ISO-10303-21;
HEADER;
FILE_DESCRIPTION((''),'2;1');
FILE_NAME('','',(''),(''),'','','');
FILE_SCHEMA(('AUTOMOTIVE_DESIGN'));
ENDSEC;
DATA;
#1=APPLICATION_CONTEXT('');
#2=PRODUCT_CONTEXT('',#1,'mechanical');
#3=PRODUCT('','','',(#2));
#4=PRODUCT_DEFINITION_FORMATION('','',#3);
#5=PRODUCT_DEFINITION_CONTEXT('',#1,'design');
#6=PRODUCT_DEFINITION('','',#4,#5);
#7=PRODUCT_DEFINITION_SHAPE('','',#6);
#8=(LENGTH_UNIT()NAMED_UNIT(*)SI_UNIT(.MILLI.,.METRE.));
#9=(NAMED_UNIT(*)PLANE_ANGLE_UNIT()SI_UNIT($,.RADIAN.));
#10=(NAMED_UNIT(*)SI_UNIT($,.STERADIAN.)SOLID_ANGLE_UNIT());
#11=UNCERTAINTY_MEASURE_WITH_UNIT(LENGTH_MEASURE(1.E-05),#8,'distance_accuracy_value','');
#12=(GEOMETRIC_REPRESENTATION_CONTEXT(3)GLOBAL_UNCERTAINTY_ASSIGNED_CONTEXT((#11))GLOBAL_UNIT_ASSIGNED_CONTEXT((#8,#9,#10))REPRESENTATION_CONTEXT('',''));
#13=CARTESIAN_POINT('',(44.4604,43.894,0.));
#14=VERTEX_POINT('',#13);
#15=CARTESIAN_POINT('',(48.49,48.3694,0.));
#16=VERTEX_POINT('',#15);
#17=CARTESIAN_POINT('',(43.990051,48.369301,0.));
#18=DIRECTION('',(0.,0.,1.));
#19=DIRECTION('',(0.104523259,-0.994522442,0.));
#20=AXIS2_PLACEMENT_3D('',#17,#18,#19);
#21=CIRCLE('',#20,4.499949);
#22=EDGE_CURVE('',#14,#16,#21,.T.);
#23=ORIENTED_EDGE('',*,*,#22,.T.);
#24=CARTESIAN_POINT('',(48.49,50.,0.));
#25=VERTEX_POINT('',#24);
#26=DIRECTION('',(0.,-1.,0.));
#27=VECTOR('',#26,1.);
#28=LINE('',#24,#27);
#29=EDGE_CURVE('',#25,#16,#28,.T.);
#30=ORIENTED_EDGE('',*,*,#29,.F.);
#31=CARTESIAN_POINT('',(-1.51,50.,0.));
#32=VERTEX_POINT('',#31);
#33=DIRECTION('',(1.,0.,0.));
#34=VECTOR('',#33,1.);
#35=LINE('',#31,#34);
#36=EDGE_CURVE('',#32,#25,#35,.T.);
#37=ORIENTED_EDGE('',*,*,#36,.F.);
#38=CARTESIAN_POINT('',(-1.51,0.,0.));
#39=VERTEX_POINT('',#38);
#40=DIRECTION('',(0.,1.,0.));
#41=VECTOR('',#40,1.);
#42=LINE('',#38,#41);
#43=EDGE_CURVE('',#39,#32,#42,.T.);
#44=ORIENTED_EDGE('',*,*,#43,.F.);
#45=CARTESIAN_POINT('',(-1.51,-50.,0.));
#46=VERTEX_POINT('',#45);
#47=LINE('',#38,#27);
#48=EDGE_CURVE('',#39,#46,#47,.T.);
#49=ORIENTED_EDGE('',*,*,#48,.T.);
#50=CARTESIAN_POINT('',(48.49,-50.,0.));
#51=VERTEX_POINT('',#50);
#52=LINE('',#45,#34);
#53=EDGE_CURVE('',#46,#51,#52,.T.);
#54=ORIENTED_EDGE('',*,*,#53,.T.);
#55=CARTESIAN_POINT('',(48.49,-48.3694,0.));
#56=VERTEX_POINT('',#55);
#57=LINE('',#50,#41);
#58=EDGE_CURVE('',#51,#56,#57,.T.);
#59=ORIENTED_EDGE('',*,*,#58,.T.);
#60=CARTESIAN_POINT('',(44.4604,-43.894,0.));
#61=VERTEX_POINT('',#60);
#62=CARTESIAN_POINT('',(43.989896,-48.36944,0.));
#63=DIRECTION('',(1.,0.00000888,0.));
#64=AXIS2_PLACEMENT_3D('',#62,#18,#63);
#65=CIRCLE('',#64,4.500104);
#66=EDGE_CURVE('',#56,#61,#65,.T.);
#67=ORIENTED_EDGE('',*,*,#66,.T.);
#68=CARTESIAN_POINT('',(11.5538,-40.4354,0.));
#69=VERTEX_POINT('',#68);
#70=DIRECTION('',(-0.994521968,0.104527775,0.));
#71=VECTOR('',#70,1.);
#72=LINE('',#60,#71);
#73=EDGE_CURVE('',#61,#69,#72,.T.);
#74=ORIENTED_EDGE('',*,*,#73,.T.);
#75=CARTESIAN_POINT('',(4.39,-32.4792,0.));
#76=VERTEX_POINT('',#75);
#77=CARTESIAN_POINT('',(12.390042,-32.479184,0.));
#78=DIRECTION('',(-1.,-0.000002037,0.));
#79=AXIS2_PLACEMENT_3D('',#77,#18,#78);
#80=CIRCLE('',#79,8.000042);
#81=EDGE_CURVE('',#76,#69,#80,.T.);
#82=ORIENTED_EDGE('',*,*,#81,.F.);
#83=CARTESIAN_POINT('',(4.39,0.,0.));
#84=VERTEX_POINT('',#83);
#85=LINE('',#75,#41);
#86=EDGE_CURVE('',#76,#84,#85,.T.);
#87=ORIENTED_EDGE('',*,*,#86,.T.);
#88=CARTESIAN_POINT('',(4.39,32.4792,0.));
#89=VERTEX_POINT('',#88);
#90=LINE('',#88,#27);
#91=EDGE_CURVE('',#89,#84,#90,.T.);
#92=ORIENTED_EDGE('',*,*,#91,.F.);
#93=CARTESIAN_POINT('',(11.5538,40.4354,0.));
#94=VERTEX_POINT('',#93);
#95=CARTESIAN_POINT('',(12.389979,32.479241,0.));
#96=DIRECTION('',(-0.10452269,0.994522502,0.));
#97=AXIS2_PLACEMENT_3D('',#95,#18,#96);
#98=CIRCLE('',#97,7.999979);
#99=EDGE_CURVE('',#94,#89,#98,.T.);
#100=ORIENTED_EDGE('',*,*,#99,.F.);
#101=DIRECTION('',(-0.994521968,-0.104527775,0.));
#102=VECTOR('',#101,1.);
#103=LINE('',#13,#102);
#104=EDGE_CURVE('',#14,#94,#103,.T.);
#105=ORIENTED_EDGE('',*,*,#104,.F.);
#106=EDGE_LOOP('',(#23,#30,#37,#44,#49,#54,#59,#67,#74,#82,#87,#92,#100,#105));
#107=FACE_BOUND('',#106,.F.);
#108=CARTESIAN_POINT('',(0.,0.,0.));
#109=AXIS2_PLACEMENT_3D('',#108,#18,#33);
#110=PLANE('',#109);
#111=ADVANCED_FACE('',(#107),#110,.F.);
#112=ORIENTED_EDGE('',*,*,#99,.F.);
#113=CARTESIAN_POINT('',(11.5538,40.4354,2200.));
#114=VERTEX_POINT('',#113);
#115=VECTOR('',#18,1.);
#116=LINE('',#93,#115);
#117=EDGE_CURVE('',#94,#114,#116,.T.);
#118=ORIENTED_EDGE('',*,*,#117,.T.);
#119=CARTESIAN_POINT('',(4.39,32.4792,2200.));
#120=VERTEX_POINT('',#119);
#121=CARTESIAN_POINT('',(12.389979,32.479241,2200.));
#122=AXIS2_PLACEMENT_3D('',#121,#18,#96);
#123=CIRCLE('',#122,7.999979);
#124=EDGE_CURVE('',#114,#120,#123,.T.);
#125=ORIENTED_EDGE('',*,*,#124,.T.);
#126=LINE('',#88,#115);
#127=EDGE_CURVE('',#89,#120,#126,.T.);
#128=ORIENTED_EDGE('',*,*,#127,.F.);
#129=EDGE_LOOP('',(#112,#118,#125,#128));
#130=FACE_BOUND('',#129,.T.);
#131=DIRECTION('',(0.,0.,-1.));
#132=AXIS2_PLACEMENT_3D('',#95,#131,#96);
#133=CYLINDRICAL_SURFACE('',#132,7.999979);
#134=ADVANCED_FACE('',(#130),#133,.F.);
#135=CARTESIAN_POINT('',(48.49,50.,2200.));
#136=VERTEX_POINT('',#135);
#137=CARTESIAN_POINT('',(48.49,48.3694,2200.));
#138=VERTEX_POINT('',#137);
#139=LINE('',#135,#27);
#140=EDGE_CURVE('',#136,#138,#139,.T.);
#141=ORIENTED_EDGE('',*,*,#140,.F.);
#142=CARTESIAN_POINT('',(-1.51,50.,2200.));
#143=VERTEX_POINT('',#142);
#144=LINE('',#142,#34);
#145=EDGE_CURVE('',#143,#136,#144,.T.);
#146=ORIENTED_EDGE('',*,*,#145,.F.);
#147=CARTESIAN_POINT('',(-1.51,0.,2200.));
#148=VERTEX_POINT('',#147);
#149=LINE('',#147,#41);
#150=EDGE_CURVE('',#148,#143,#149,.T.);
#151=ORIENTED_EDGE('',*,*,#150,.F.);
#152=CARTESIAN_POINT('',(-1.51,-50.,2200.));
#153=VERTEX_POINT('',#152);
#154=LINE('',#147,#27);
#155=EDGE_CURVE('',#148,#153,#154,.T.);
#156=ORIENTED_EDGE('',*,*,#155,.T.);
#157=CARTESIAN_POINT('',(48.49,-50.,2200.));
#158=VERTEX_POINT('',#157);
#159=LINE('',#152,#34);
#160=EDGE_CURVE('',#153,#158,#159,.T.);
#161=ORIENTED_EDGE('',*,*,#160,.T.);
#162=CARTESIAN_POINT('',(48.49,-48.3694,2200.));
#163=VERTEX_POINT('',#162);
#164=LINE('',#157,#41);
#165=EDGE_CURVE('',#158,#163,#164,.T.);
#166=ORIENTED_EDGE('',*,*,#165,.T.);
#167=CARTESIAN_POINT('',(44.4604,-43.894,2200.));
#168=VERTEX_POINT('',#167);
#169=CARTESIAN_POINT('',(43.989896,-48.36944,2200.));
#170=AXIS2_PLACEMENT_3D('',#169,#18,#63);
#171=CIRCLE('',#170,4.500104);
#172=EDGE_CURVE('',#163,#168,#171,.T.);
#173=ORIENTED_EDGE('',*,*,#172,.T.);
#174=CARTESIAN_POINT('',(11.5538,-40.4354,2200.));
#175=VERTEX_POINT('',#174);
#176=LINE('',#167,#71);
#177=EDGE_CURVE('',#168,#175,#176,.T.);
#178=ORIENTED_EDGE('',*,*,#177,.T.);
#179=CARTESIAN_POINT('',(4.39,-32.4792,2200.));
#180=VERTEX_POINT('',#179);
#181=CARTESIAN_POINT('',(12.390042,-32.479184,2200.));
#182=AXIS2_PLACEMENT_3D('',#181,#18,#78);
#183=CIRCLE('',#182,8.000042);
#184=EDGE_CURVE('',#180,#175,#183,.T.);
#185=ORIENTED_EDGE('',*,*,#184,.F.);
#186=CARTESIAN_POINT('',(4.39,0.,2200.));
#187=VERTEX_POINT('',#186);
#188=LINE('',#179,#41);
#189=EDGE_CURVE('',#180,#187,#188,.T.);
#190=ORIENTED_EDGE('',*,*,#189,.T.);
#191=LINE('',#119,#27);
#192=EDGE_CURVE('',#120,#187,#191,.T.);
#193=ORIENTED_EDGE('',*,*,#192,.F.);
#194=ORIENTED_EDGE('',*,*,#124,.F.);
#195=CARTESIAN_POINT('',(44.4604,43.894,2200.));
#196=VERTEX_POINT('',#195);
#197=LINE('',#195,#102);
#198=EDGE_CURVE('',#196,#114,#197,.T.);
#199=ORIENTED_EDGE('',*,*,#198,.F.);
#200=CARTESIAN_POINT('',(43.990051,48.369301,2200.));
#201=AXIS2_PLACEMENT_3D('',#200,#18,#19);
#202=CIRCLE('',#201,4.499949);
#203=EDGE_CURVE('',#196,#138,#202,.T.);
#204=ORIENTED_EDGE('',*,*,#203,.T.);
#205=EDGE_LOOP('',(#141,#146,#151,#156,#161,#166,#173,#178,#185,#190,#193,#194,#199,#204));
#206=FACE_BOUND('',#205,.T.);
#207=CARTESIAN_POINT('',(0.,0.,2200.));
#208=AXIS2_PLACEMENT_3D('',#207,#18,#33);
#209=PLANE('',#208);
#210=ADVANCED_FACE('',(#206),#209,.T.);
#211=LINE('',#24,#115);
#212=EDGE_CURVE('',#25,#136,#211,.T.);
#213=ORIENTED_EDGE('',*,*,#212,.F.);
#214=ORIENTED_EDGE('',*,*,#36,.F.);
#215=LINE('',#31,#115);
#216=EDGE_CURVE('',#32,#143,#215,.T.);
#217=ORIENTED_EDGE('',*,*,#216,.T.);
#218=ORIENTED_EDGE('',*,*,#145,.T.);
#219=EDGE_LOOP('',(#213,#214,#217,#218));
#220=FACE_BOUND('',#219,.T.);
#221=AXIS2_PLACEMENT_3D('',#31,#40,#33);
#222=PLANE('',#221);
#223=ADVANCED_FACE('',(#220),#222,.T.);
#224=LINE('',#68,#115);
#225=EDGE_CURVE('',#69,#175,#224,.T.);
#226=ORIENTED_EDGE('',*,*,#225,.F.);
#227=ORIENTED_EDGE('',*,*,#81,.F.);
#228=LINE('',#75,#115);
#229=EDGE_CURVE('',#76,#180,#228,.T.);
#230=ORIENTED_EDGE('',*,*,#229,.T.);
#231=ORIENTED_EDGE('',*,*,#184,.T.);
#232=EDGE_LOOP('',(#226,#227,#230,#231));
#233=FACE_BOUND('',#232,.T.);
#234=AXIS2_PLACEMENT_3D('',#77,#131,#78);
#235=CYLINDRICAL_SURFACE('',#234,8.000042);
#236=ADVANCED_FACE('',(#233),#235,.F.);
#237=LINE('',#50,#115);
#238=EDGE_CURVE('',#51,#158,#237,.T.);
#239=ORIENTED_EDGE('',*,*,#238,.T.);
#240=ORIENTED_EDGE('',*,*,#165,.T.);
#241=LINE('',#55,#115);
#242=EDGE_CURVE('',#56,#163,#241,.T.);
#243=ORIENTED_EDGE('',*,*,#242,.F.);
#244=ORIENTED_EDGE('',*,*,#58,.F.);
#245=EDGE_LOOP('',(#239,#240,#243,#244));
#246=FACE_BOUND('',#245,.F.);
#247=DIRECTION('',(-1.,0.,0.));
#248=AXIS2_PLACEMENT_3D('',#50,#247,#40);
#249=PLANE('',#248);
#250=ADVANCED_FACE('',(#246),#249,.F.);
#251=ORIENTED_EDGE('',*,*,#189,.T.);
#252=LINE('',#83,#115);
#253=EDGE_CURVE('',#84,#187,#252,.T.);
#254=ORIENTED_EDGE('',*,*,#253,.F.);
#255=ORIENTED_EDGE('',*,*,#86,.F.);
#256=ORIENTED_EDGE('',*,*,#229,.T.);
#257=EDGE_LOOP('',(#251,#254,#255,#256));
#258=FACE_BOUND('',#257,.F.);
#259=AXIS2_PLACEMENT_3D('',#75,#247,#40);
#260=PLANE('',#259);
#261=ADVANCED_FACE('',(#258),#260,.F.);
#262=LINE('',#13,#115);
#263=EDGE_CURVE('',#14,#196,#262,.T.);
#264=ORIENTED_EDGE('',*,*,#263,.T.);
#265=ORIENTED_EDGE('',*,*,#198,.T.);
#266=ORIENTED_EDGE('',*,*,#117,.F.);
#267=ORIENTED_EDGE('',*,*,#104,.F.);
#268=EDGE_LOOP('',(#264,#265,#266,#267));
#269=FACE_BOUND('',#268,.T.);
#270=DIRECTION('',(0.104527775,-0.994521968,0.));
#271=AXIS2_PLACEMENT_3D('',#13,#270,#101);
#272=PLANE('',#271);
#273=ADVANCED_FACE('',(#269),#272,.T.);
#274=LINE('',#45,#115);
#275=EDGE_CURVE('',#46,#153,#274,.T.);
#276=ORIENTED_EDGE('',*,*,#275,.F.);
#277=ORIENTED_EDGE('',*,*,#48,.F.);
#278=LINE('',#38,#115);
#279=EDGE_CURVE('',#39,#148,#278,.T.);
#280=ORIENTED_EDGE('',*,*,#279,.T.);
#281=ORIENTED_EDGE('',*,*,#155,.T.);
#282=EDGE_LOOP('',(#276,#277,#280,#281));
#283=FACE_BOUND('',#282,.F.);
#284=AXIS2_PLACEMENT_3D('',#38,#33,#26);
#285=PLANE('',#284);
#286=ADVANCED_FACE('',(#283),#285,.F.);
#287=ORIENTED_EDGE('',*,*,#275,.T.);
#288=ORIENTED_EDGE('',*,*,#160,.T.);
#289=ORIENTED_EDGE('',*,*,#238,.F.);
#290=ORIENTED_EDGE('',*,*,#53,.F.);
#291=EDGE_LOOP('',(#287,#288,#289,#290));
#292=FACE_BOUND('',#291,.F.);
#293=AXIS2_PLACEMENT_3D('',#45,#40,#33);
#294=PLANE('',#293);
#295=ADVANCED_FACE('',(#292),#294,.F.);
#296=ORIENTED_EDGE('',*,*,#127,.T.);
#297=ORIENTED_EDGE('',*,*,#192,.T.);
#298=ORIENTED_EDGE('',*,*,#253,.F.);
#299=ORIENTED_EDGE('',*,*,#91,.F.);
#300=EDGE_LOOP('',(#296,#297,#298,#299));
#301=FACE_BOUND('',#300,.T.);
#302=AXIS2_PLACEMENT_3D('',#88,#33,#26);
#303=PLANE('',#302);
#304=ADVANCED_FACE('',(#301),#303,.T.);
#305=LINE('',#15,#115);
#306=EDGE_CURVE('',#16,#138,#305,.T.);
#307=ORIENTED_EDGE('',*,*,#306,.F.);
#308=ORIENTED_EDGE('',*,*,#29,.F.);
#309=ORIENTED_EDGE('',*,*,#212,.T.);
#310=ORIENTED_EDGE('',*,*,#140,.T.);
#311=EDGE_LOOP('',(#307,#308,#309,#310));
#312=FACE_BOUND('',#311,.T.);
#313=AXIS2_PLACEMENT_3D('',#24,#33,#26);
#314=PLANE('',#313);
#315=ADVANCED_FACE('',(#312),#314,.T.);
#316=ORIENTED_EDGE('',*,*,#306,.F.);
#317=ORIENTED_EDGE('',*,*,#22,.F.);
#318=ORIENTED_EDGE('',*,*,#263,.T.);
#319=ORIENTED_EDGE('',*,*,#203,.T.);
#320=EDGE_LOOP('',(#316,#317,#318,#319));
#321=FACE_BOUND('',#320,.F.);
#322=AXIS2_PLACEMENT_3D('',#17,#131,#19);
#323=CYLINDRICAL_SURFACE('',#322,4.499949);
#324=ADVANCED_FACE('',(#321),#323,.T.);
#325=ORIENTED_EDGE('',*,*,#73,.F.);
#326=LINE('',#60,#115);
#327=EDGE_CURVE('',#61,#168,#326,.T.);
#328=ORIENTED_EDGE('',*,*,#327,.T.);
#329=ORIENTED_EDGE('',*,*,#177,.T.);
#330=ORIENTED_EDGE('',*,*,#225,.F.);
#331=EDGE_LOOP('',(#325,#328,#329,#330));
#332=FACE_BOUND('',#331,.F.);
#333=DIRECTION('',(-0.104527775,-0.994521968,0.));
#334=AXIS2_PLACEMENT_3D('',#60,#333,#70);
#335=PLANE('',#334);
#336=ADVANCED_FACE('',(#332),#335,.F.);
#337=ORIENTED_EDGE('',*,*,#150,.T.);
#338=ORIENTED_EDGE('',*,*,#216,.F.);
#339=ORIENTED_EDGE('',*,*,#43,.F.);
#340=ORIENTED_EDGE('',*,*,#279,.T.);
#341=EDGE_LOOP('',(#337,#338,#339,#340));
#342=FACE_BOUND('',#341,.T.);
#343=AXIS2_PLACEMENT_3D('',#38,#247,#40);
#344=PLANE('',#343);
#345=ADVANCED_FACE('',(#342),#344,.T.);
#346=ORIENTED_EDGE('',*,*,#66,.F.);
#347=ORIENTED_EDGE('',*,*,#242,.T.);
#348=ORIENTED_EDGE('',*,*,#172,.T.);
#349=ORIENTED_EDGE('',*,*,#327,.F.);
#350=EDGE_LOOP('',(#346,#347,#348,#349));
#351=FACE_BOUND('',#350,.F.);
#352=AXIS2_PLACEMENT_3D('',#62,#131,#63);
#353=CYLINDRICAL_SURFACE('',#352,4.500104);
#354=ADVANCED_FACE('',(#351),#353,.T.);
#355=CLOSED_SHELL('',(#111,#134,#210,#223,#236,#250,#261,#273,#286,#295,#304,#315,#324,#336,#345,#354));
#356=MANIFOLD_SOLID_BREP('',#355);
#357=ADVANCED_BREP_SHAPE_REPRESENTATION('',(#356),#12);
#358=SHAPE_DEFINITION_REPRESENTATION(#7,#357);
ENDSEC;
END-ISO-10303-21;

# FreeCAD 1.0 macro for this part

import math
import FreeCAD as App
import Part
import Sketcher
from FreeCAD import Vector
Q = App.Units.Quantity

doc = App.newDocument("Part")
body = doc.addObject("PartDesign::Body", "Body")

# Sketch on XY plane
sketch1 = body.newObject("Sketcher::SketchObject", "Sketch")
sketch1.AttachmentSupport = (doc.getObject("XY_Plane"), [""])
sketch1.MapMode = "FlatFace"
sketch1.addGeometry([
    Part.LineSegment(Vector(-1.5, 50, 0), Vector(-1.5, -50, 0)),  # 0
    Part.LineSegment(Vector(-1.5, -50, 0), Vector(48.5, -50, 0)),  # 1
    Part.LineSegment(Vector(48.5, -50, 0), Vector(48.5, -48.4, 0)),  # 2
    Part.ArcOfCircle(Part.Circle(Vector(44, -48.4, 0), Vector(0, 0, 1), 4.5), math.radians(0), math.radians(84)),  # 3
    Part.LineSegment(Vector(44.5, -43.9, 0), Vector(11.6, -40.4, 0)),  # 4
    Part.ArcOfCircle(Part.Circle(Vector(12.4, -32.5, 0), Vector(0, 0, 1), 8), math.radians(180), math.radians(264)),  # 5
    Part.LineSegment(Vector(4.4, -32.5, 0), Vector(4.4, 32.5, 0)),  # 6
    Part.ArcOfCircle(Part.Circle(Vector(12.4, 32.5, 0), Vector(0, 0, 1), 8), math.radians(96), math.radians(180)),  # 7
    Part.LineSegment(Vector(11.6, 40.4, 0), Vector(44.5, 43.9, 0)),  # 8
    Part.ArcOfCircle(Part.Circle(Vector(44, 48.4, 0), Vector(0, 0, 1), 4.5), math.radians(-84), math.radians(0)),  # 9
    Part.LineSegment(Vector(48.5, 48.4, 0), Vector(48.5, 50, 0)),  # 10
    Part.LineSegment(Vector(48.5, 50, 0), Vector(-1.5, 50, 0)),  # 11
], False)
sketch1.addConstraint([
    Sketcher.Constraint("Coincident", 0, 2, 1, 1),
    Sketcher.Constraint("Coincident", 1, 2, 2, 1),
    Sketcher.Constraint("Tangent", 2, 2, 3, 1),
    Sketcher.Constraint("Tangent", 3, 2, 4, 1),
    Sketcher.Constraint("Tangent", 4, 2, 5, 2),
    Sketcher.Constraint("Tangent", 5, 1, 6, 1),
    Sketcher.Constraint("Tangent", 6, 2, 7, 2),
    Sketcher.Constraint("Tangent", 7, 1, 8, 1),
    Sketcher.Constraint("Tangent", 8, 2, 9, 1),
    Sketcher.Constraint("Tangent", 9, 2, 10, 1),
    Sketcher.Constraint("Coincident", 10, 2, 11, 1),
    Sketcher.Constraint("Coincident", 11, 2, 0, 1),
    Sketcher.Constraint("Vertical", 0),
    Sketcher.Constraint("Horizontal", 1),
    Sketcher.Constraint("Vertical", 2),
    Sketcher.Constraint("Vertical", 6),
    Sketcher.Constraint("Vertical", 10),
    Sketcher.Constraint("Horizontal", 11),
    Sketcher.Constraint("Equal", 5, 7),
    Sketcher.Constraint("Equal", 3, 9),
    Sketcher.Constraint("Symmetric", 3, 3, 9, 3, -1),
    Sketcher.Constraint("Vertical", 4, 2, 7, 1),
    Sketcher.Constraint("Equal", 2, 10),
    Sketcher.Constraint("Radius", 5, Q("8 mm")),
    Sketcher.Constraint("Radius", 3, Q("4.5 mm")),
    Sketcher.Constraint("DistanceX", 1, 1, 1, 2, Q("50 mm")),
    Sketcher.Constraint("DistanceY", 0, 2, -1, 1, Q("50 mm")),
    Sketcher.Constraint("DistanceX", 0, 2, 5, 1, Q("5.9 mm")),
    Sketcher.Constraint("DistanceX", 0, 2, -1, 1, Q("1.51 mm")),
    Sketcher.Constraint("Angle", 4, Q("174 deg")),
    Sketcher.Constraint("DistanceY", 2, 1, 2, 2, Q("1.6306 mm")),
])
pad1 = body.newObject("PartDesign::Pad", "Pad")
pad1.Profile = sketch1
pad1.Length = 2200

doc.recompute()
